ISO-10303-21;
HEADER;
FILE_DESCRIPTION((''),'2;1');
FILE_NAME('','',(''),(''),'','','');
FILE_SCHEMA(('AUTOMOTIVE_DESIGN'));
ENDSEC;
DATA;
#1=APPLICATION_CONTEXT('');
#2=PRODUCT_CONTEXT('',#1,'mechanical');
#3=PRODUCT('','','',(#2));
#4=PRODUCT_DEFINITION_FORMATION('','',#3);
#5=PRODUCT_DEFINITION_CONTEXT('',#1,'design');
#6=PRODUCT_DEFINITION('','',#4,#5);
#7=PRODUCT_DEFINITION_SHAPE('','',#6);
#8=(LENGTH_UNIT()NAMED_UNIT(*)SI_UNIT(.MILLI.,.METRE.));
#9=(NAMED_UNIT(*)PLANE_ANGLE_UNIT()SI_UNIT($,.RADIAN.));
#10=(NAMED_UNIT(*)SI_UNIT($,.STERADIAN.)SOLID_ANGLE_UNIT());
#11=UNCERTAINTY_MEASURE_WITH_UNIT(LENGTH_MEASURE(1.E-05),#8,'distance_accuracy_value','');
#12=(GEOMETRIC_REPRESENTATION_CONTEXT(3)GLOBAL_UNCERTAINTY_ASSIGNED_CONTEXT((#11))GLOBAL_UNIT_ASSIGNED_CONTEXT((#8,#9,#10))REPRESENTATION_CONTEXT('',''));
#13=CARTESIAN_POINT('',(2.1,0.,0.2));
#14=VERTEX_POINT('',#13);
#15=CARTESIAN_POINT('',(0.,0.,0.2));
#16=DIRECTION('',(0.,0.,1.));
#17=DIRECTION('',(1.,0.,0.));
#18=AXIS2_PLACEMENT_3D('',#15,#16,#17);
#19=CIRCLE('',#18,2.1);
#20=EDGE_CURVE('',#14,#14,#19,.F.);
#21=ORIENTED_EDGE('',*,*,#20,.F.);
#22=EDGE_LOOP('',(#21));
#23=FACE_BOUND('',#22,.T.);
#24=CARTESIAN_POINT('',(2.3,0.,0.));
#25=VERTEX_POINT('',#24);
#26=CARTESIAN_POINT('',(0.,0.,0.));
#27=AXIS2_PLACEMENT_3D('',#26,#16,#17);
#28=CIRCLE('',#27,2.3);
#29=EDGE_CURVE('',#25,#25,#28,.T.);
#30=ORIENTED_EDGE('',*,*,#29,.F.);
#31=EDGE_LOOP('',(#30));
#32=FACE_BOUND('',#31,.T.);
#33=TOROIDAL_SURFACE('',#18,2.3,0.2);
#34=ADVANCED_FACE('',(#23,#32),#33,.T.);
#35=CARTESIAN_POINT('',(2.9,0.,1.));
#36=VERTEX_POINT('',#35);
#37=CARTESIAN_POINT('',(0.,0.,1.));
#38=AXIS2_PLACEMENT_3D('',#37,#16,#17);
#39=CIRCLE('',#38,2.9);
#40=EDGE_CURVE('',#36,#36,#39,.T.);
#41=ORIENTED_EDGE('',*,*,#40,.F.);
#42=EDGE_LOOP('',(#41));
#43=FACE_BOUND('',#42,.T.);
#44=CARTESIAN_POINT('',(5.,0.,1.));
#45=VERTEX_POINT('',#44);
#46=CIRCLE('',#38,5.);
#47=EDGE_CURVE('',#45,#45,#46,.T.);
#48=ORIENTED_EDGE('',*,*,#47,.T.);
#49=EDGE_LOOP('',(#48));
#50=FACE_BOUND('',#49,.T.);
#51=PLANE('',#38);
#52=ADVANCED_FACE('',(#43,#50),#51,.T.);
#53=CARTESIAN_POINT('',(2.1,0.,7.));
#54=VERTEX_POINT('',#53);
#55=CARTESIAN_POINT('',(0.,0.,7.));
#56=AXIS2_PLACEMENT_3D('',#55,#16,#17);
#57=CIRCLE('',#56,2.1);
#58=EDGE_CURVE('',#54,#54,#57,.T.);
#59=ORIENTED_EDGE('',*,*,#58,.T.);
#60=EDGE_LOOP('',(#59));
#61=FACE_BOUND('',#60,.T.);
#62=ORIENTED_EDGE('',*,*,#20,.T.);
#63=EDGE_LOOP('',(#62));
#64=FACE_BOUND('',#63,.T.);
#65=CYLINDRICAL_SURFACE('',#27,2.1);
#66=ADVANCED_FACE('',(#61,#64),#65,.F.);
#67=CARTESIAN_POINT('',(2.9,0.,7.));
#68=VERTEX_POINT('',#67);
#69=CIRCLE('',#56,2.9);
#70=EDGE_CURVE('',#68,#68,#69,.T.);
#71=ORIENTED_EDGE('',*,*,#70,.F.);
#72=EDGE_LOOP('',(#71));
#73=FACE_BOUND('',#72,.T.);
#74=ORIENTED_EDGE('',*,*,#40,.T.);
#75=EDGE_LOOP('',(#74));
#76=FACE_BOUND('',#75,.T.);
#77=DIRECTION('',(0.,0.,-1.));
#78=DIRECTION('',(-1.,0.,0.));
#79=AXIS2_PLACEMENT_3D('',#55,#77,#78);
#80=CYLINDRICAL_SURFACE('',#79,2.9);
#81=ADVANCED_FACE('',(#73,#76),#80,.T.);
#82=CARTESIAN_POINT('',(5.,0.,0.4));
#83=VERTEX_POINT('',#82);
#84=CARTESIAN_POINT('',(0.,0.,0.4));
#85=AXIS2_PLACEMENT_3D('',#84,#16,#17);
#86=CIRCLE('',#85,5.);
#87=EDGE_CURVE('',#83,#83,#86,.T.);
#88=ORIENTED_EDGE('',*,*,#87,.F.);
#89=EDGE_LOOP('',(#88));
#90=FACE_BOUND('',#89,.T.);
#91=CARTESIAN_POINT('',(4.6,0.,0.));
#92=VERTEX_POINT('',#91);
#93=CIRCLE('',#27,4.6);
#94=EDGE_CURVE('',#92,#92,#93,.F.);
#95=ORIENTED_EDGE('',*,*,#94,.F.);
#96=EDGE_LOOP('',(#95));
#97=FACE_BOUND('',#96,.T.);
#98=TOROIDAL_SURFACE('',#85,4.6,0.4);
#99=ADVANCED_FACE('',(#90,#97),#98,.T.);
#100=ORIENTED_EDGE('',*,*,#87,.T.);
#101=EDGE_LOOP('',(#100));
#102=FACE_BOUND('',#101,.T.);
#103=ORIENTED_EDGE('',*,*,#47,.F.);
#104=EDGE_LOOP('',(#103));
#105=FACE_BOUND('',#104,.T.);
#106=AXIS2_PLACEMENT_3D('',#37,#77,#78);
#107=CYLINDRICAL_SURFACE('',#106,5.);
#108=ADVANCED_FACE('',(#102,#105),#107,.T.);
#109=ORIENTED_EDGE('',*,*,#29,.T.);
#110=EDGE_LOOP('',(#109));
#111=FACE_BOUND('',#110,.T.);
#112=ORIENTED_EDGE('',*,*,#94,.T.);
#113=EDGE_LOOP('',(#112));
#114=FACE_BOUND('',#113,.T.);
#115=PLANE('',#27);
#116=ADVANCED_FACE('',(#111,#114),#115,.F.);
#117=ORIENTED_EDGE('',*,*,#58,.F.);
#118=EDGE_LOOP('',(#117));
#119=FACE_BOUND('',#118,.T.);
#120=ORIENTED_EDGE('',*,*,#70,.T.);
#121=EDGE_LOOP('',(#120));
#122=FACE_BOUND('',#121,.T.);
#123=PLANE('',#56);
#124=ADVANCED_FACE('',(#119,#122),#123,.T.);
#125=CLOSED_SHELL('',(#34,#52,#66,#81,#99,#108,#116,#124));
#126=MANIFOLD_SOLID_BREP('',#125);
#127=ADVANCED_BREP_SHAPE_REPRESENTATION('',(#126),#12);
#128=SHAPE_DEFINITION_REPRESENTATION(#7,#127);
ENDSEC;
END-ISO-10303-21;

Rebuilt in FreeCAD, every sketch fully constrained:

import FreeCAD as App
import Part
import Sketcher
from FreeCAD import Vector
Q = App.Units.Quantity


def edges_at(feature, points):
    """Names of the edges that pass closest to the given points."""
    edges = feature.Shape.Edges
    near = lambda p: min(range(len(edges)), key=lambda i: edges[i].distToShape(Part.Vertex(*p))[0])
    return sorted({f"Edge{near(p) + 1}" for p in points})

doc = App.newDocument("Part")
body = doc.addObject("PartDesign::Body", "Body")

# Sketch on XY plane
sketch1 = body.newObject("Sketcher::SketchObject", "Sketch")
sketch1.AttachmentSupport = (doc.getObject("XY_Plane"), [""])
sketch1.MapMode = "FlatFace"
sketch1.addGeometry(Part.Circle(Vector(0, 0, 0), Vector(0, 0, 1), 5), False)
sketch1.addConstraint([
    Sketcher.Constraint("Coincident", 0, 3, -1, 1),
    Sketcher.Constraint("Diameter", 0, Q("10 mm")),
])
pad1 = body.newObject("PartDesign::Pad", "Pad")
pad1.Profile = sketch1
pad1.Length = 1

# Sketch on XY plane
sketch2 = body.newObject("Sketcher::SketchObject", "Sketch001")
sketch2.AttachmentSupport = (doc.getObject("XY_Plane"), [""])
sketch2.MapMode = "FlatFace"
sketch2.AttachmentOffset = App.Placement(Vector(0, 0, 1), App.Rotation())
sketch2.addGeometry(Part.Circle(Vector(0, 0, 0), Vector(0, 0, 1), 2.9), False)
sketch2.addConstraint([
    Sketcher.Constraint("Coincident", 0, 3, -1, 1),
    Sketcher.Constraint("Diameter", 0, Q("5.8 mm")),
])
pad2 = body.newObject("PartDesign::Pad", "Pad001")
pad2.Profile = sketch2
pad2.Length = 6

# Sketch on XY plane
sketch3 = body.newObject("Sketcher::SketchObject", "Sketch002")
sketch3.AttachmentSupport = (doc.getObject("XY_Plane"), [""])
sketch3.MapMode = "FlatFace"
sketch3.AttachmentOffset = App.Placement(Vector(0, 0, 7), App.Rotation())
sketch3.addGeometry(Part.Circle(Vector(0, 0, 0), Vector(0, 0, 1), 2.1), False)
sketch3.addConstraint([
    Sketcher.Constraint("Coincident", 0, 3, -1, 1),
    Sketcher.Constraint("Diameter", 0, Q("4.2 mm")),
])
pocket1 = body.newObject("PartDesign::Pocket", "Pocket")
pocket1.Profile = sketch3
pocket1.Type = "ThroughAll"
pocket1.Midplane = True
doc.recompute()

fillet = body.newObject("PartDesign::Fillet", "Fillet")
fillet.Base = (pocket1, edges_at(pocket1, [(-5, 0, 0)]))
fillet.Radius = 0.4
doc.recompute()

fillet2 = body.newObject("PartDesign::Fillet", "Fillet001")
fillet2.Base = (fillet, edges_at(fillet, [(-2.1, 0, 0)]))
fillet2.Radius = 0.2

doc.recompute()
